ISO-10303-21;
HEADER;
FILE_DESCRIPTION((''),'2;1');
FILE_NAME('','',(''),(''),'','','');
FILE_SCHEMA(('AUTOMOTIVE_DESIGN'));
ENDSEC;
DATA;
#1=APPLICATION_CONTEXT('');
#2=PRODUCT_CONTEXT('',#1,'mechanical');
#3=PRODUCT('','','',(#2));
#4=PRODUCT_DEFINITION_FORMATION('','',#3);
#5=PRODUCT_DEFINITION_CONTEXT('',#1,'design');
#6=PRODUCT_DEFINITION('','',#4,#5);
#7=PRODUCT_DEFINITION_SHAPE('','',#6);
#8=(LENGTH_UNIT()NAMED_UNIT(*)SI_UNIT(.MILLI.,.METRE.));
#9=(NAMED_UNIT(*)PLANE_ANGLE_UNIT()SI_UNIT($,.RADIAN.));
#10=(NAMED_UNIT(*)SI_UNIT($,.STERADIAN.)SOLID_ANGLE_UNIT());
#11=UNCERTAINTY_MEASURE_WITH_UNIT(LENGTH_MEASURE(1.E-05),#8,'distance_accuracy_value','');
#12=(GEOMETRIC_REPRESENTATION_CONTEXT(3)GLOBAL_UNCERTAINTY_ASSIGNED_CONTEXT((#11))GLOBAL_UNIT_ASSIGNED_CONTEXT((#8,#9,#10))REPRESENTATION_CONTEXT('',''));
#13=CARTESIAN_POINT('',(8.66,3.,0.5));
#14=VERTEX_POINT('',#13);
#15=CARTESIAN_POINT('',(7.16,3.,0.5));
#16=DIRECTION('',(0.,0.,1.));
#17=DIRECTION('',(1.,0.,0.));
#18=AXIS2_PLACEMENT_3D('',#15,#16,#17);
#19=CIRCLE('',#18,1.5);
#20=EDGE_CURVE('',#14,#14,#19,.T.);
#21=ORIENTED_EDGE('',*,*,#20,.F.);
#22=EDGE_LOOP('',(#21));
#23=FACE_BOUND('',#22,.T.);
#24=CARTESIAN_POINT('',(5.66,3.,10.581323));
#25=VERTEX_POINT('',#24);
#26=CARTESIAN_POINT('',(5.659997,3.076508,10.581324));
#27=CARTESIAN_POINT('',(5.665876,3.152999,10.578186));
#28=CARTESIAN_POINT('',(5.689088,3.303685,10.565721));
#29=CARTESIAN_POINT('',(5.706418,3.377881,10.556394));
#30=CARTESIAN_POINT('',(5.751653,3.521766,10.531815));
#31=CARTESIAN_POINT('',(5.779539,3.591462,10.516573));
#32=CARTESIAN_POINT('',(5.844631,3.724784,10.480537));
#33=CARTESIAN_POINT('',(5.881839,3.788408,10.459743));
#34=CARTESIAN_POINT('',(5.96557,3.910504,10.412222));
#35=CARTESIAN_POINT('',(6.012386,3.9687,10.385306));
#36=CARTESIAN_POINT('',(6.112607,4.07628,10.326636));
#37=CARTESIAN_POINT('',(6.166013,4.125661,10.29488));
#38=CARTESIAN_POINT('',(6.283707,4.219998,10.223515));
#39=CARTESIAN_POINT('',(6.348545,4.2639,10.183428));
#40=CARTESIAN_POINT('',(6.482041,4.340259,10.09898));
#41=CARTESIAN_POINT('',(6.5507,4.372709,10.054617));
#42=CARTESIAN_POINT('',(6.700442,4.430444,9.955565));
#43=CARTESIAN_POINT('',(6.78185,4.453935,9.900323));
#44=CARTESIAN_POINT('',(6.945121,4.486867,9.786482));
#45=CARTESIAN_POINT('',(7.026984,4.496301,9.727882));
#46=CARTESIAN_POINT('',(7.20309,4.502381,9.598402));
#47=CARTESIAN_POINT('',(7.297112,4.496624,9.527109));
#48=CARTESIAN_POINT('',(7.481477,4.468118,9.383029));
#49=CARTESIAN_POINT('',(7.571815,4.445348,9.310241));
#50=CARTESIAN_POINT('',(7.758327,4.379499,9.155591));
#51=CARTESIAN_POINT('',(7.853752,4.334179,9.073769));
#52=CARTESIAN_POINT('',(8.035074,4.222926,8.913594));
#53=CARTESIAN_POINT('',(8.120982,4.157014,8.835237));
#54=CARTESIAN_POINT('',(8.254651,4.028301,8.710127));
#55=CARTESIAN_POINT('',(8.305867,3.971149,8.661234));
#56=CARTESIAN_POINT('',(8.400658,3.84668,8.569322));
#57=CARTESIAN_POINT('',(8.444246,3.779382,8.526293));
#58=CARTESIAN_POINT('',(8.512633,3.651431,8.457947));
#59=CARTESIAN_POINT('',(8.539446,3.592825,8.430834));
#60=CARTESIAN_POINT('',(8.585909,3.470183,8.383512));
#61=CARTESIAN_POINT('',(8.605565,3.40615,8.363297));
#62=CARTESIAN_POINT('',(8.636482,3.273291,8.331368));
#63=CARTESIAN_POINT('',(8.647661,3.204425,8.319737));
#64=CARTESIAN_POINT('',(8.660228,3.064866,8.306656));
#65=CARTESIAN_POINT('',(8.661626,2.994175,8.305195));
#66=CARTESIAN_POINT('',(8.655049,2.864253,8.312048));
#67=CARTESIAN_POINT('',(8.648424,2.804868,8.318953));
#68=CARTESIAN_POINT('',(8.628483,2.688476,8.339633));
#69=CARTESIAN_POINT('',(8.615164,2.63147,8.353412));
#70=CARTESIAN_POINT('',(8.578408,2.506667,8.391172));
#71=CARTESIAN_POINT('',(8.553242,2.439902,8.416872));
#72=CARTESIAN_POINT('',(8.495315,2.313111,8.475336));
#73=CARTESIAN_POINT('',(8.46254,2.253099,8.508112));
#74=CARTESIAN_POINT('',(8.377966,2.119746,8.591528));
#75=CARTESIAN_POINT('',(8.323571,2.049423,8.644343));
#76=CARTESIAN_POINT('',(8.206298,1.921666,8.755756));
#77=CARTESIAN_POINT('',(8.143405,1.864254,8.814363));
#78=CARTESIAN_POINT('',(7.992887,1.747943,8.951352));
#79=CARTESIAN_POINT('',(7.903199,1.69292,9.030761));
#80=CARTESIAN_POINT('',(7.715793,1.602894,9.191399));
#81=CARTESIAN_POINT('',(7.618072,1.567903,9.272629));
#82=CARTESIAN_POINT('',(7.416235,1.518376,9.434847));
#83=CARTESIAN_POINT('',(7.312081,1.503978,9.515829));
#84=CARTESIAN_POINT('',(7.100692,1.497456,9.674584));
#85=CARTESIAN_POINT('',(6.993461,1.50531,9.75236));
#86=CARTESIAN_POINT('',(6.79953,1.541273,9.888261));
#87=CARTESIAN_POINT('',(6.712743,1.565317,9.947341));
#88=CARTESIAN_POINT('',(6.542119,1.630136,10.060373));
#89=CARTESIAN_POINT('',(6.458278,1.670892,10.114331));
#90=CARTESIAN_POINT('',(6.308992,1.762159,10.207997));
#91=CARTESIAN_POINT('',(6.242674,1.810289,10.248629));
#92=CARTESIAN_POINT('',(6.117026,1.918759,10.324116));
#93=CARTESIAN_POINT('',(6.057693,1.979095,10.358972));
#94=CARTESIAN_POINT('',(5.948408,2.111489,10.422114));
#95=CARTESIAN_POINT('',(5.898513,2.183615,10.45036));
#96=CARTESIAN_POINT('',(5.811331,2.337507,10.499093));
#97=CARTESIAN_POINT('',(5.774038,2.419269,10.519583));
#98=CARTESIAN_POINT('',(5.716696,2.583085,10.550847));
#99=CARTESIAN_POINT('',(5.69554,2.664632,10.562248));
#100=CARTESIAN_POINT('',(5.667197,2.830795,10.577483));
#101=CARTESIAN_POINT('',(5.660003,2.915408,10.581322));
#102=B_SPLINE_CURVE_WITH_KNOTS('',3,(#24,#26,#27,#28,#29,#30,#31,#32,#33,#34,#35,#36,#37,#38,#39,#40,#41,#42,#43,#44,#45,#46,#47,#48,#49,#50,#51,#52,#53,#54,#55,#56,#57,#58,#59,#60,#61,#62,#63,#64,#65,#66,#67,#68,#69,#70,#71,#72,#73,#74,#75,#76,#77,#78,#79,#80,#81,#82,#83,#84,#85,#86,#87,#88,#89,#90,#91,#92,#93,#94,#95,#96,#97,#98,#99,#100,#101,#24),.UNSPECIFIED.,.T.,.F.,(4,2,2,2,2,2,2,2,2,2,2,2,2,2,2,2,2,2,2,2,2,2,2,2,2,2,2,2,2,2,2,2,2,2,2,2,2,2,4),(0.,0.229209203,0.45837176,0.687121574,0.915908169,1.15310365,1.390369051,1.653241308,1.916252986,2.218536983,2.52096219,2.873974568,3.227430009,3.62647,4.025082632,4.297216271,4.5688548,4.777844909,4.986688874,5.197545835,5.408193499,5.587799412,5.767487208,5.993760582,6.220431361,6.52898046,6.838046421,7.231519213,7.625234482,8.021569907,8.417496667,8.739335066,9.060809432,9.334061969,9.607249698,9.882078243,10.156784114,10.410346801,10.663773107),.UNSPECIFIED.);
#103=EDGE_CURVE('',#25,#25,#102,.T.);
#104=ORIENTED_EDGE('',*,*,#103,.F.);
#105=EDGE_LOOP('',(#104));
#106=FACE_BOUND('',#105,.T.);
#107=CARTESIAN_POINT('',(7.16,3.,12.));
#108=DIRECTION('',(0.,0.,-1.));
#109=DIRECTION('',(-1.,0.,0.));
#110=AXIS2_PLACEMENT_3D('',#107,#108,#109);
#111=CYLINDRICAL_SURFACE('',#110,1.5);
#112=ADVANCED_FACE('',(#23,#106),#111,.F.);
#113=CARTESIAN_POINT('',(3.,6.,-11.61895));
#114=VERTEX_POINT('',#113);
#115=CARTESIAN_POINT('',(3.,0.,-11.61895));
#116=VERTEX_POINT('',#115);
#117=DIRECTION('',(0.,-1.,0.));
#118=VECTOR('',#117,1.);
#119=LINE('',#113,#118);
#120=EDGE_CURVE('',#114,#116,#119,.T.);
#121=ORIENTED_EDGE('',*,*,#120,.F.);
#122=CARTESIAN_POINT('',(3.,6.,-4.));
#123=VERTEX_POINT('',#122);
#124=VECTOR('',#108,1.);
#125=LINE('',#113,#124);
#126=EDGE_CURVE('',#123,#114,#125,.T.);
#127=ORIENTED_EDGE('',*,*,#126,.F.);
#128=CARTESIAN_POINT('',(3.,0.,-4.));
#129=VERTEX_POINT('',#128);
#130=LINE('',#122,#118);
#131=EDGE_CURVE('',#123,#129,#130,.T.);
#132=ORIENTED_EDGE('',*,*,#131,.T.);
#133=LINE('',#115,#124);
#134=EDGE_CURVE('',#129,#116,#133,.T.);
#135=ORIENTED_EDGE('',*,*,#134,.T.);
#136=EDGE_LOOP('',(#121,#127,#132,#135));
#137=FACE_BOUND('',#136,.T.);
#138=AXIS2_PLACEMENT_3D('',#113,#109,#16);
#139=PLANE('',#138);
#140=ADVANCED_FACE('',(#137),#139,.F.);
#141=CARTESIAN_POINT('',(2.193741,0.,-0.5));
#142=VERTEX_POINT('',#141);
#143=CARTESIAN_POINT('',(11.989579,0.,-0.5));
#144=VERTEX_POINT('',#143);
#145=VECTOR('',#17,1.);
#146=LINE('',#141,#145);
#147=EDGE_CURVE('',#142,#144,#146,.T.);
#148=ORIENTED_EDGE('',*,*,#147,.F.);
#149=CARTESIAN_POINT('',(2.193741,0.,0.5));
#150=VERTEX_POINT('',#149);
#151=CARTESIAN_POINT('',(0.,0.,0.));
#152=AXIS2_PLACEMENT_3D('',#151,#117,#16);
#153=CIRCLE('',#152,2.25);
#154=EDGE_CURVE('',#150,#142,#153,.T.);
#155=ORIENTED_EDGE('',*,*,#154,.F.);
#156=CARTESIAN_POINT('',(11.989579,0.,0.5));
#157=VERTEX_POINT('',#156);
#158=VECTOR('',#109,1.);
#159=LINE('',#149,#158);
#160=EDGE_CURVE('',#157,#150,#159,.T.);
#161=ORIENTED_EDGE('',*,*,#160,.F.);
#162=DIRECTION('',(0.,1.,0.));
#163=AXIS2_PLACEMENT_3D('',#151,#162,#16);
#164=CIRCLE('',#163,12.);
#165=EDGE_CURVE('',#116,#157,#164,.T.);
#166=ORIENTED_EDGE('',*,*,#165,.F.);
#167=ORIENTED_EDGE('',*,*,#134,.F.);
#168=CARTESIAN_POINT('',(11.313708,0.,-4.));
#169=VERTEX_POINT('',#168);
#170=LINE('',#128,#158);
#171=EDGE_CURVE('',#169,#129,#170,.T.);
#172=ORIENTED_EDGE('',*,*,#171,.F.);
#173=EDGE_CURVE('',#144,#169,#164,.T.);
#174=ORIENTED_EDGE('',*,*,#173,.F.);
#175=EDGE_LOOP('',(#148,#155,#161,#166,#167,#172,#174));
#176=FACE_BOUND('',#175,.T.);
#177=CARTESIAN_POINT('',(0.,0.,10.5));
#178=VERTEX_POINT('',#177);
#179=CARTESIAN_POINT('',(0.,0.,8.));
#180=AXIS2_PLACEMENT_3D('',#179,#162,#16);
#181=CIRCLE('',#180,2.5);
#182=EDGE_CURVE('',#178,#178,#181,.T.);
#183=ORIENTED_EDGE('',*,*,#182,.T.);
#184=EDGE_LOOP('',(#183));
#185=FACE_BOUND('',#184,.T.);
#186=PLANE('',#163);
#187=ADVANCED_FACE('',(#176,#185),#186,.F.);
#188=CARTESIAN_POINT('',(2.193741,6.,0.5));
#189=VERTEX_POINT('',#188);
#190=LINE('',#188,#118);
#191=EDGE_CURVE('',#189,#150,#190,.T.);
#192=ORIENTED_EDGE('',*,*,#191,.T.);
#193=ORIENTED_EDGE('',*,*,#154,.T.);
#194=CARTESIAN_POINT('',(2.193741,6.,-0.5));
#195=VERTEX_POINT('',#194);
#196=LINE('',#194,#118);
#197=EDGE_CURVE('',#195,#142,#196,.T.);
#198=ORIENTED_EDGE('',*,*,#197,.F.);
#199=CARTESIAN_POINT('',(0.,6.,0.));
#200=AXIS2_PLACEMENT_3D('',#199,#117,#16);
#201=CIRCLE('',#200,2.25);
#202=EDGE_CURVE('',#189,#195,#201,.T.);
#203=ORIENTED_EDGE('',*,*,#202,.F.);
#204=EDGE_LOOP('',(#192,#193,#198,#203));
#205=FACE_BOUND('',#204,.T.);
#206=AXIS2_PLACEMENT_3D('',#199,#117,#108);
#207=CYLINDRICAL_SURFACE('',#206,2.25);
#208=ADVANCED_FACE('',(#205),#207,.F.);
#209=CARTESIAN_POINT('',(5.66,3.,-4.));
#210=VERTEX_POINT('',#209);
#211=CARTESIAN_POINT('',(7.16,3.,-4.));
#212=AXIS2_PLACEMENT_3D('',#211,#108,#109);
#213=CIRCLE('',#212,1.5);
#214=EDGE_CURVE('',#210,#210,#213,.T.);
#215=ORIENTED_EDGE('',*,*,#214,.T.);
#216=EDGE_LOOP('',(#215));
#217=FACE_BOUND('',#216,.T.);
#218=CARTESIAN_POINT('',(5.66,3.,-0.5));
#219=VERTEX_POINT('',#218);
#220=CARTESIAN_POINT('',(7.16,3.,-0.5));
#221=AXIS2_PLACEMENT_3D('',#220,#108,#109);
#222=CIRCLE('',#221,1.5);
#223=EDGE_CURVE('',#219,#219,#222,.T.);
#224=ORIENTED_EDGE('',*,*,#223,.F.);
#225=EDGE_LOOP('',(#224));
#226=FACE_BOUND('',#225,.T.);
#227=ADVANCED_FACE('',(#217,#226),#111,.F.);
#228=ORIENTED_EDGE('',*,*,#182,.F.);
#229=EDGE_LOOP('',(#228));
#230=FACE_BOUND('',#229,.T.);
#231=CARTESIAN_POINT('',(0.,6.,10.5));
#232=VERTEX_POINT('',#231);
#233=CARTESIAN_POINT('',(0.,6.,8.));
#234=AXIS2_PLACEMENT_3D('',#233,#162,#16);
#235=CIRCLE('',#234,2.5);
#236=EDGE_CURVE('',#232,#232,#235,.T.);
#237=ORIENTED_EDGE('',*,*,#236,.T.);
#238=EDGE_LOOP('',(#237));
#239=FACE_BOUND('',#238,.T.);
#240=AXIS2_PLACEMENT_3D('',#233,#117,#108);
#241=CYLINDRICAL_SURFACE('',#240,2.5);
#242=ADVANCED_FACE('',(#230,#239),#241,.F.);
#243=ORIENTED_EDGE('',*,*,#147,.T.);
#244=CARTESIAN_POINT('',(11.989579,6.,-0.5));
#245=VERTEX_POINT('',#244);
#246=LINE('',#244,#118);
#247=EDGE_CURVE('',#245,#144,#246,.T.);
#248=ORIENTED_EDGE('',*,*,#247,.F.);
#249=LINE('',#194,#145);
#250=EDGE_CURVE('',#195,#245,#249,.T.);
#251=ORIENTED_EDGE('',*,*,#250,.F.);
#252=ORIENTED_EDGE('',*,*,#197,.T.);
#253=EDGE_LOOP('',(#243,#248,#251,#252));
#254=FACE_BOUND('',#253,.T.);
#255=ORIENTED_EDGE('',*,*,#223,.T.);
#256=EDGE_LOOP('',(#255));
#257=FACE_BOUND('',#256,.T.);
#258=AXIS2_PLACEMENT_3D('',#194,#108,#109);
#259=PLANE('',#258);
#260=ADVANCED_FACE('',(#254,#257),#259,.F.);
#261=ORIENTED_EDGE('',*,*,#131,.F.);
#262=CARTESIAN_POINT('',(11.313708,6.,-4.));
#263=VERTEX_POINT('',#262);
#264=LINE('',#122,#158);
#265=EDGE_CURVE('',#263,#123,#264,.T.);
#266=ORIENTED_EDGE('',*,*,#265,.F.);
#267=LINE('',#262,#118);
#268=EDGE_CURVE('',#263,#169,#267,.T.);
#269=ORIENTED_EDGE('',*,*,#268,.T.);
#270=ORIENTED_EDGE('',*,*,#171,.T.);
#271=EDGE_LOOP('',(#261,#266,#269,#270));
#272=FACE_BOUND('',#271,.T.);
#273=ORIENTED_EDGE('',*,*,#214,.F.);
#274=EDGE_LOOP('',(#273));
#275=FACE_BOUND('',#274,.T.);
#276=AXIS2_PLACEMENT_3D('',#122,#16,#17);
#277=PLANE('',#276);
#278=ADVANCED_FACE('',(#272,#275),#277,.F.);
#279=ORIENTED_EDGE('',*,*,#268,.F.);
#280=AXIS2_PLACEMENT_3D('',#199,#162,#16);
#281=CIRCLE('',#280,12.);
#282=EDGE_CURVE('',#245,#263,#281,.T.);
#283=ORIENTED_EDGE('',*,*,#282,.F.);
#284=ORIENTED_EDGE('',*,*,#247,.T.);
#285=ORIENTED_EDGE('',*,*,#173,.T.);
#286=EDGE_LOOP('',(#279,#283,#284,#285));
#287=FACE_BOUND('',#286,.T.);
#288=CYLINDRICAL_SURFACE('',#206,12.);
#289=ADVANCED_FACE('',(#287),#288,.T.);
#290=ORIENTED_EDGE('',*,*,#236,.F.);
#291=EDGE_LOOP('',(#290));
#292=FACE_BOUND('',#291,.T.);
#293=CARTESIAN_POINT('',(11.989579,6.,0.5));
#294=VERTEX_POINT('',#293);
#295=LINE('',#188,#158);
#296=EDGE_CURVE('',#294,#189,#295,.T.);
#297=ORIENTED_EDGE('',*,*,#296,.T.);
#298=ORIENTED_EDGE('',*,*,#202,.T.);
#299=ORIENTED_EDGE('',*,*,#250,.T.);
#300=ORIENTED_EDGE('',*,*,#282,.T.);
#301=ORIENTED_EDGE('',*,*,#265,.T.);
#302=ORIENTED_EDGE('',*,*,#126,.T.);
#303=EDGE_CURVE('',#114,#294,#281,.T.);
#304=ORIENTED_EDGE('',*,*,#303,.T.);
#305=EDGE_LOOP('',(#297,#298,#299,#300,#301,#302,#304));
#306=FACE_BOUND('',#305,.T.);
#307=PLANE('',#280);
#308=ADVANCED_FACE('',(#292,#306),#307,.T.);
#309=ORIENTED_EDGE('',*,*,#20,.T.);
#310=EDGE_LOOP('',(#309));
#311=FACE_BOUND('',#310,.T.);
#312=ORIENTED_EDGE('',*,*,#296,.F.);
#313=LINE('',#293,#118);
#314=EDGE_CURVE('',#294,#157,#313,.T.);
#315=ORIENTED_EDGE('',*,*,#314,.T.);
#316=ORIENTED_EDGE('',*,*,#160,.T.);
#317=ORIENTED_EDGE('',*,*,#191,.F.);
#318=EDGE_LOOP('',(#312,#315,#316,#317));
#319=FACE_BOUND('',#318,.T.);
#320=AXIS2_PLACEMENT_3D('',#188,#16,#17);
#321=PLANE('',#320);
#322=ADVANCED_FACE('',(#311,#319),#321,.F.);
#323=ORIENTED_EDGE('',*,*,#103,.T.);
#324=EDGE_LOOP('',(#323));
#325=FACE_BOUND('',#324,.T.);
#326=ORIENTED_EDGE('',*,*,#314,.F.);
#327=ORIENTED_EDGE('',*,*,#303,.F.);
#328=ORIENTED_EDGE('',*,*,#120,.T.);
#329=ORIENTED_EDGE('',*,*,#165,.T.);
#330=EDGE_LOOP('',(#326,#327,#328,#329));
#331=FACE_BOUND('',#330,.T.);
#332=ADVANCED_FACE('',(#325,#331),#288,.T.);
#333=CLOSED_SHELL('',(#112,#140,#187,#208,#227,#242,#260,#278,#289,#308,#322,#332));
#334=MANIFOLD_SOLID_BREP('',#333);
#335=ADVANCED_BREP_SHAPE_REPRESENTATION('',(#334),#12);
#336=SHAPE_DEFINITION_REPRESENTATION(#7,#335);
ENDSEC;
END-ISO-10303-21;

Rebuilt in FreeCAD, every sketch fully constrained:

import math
import FreeCAD as App
import Part
import Sketcher

V = App.Vector
Q = App.Units.Quantity

doc = App.newDocument("Part")
body = doc.addObject("PartDesign::Body", "Body")

# Sketch on XZ plane
sketch1 = doc.addObject("Sketcher::SketchObject", "Sketch")
body.addObject(sketch1)
sketch1.AttachmentSupport = (doc.XZ_Plane, [""])
sketch1.MapMode = "FlatFace"
sketch1.addGeometry([
    Part.LineSegment(V(2.2, -0.5, 0), V(12, -0.5, 0)),  # 0
    Part.ArcOfCircle(Part.Circle(V(0, 0, 0), V(0, 0, 1), 12), math.radians(-19.47), math.radians(-2.39)),  # 1
    Part.LineSegment(V(11.3, -4, 0), V(3, -4, 0)),  # 2
    Part.LineSegment(V(3, -4, 0), V(3, -11.6, 0)),  # 3
    Part.ArcOfCircle(Part.Circle(V(0, 0, 0), V(0, 0, 1), 12), math.radians(2), math.radians(284)),  # 4
    Part.LineSegment(V(12, 0.5, 0), V(2.2, 0.5, 0)),  # 5
    Part.ArcOfCircle(Part.Circle(V(0, 0, 0), V(0, 0, 1), 2.2), math.radians(13), math.radians(347)),  # 6
    Part.Circle(V(0, 8, 0), V(0, 0, 1), 2.5),  # 7
], False)
sketch1.addConstraint([
    Sketcher.Constraint("Coincident", 0, 2, 1, 2),
    Sketcher.Constraint("Coincident", 1, 1, 2, 1),
    Sketcher.Constraint("Coincident", 2, 2, 3, 1),
    Sketcher.Constraint("Coincident", 3, 2, 4, 2),
    Sketcher.Constraint("Coincident", 4, 1, 5, 1),
    Sketcher.Constraint("Coincident", 5, 2, 6, 1),
    Sketcher.Constraint("Coincident", 6, 2, 0, 1),
    Sketcher.Constraint("Horizontal", 0),
    Sketcher.Constraint("Horizontal", 2),
    Sketcher.Constraint("Vertical", 3),
    Sketcher.Constraint("Horizontal", 5),
    Sketcher.Constraint("Coincident", 1, 3, -1, 1),
    Sketcher.Constraint("Coincident", 4, 3, -1, 1),
    Sketcher.Constraint("Coincident", 6, 3, -1, 1),
    Sketcher.Constraint("Equal", 1, 4),
    Sketcher.Constraint("PointOnObject", 7, 3, -2),
    Sketcher.Constraint("Vertical", 0, 2, 4, 1),
    Sketcher.Constraint("Diameter", 7, Q("5 mm")),
    Sketcher.Constraint("Radius", 1, Q("12 mm")),
    Sketcher.Constraint("Radius", 6, Q("2.25 mm")),
    Sketcher.Constraint("DistanceY", -1, 1, 7, 3, Q("8 mm")),
    Sketcher.Constraint("DistanceY", 1, 1, -1, 1, Q("4 mm")),
    Sketcher.Constraint("DistanceX", -1, 1, 2, 2, Q("3 mm")),
    Sketcher.Constraint("DistanceY", 0, 2, 4, 1, Q("1 mm")),
])
pad1 = doc.addObject("PartDesign::Pad", "Pad")
body.addObject(pad1)
pad1.Profile = sketch1
pad1.Length = 6
pad1.Reversed = True

# Sketch on XY plane
sketch2 = doc.addObject("Sketcher::SketchObject", "Sketch001")
body.addObject(sketch2)
sketch2.AttachmentSupport = (doc.XY_Plane, [""])
sketch2.MapMode = "FlatFace"
sketch2.AttachmentOffset = App.Placement(V(0, 0, -4), App.Rotation())
sketch2.addGeometry(Part.Circle(V(7.2, 3, 0), V(0, 0, 1), 1.5), False)
sketch2.addConstraint([
    Sketcher.Constraint("Diameter", 0, Q("3 mm")),
    Sketcher.Constraint("DistanceY", -1, 1, 0, 3, Q("3 mm")),
    Sketcher.Constraint("DistanceX", -1, 1, 0, 3, Q("7.16 mm")),
])
pocket1 = doc.addObject("PartDesign::Pocket", "Pocket")
body.addObject(pocket1)
pocket1.Profile = sketch2
pocket1.Length = 16
pocket1.Reversed = True

doc.recompute()
